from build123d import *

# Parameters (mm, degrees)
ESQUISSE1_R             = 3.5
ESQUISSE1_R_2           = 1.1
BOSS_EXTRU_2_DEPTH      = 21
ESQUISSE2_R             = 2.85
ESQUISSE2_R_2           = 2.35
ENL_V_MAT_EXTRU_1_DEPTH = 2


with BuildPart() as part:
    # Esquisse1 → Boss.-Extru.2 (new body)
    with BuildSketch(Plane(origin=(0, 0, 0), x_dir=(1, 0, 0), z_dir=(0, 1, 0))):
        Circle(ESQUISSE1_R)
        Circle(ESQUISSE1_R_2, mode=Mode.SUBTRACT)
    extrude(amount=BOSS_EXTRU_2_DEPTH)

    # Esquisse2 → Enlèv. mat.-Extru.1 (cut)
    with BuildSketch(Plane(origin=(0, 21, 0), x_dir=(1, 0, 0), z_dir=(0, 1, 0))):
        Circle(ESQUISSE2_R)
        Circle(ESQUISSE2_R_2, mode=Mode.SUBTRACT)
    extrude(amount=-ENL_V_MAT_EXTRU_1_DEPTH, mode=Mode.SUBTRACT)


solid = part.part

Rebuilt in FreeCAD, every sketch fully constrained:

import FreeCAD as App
import Part
import Sketcher
from FreeCAD import Vector
Q = App.Units.Quantity

doc = App.newDocument("Part")
body = doc.addObject("PartDesign::Body", "Body")

# Sketch on XZ plane
sketch1 = body.newObject("Sketcher::SketchObject", "Sketch")
sketch1.AttachmentSupport = (doc.getObject("XZ_Plane"), [""])
sketch1.MapMode = "FlatFace"
sketch1.addGeometry(Part.Circle(Vector(0, 0, 0), Vector(0, 0, 1), 3.5), False)
sketch1.addGeometry(Part.Circle(Vector(0, 0, 0), Vector(0, 0, 1), 1.1), False)
sketch1.addConstraint(Sketcher.Constraint("Coincident", 0, 3, -1, 1))
sketch1.addConstraint(Sketcher.Constraint("Coincident", 1, 3, -1, 1))
sketch1.addConstraint(Sketcher.Constraint("Diameter", 0, Q("7 mm")))
sketch1.addConstraint(Sketcher.Constraint("Diameter", 1, Q("2.2 mm")))
pad1 = body.newObject("PartDesign::Pad", "Pad")
pad1.Profile = sketch1
pad1.Length = 21
pad1.Reversed = True

# Sketch on XZ plane
sketch2 = body.newObject("Sketcher::SketchObject", "Sketch001")
sketch2.AttachmentSupport = (doc.getObject("XZ_Plane"), [""])
sketch2.MapMode = "FlatFace"
sketch2.AttachmentOffset = App.Placement(Vector(0, 0, -21), App.Rotation())
sketch2.addGeometry(Part.Circle(Vector(0, 0, 0), Vector(0, 0, 1), 2.85), False)
sketch2.addGeometry(Part.Circle(Vector(0, 0, 0), Vector(0, 0, 1), 2.35), False)
sketch2.addConstraint(Sketcher.Constraint("Coincident", 0, 3, -1, 1))
sketch2.addConstraint(Sketcher.Constraint("Coincident", 1, 3, -1, 1))
sketch2.addConstraint(Sketcher.Constraint("Diameter", 0, Q("5.7 mm")))
sketch2.addConstraint(Sketcher.Constraint("Diameter", 1, Q("4.7 mm")))
pocket1 = body.newObject("PartDesign::Pocket", "Pocket")
pocket1.Profile = sketch2
pocket1.Length = 2
pocket1.Reversed = True

doc.recompute()
